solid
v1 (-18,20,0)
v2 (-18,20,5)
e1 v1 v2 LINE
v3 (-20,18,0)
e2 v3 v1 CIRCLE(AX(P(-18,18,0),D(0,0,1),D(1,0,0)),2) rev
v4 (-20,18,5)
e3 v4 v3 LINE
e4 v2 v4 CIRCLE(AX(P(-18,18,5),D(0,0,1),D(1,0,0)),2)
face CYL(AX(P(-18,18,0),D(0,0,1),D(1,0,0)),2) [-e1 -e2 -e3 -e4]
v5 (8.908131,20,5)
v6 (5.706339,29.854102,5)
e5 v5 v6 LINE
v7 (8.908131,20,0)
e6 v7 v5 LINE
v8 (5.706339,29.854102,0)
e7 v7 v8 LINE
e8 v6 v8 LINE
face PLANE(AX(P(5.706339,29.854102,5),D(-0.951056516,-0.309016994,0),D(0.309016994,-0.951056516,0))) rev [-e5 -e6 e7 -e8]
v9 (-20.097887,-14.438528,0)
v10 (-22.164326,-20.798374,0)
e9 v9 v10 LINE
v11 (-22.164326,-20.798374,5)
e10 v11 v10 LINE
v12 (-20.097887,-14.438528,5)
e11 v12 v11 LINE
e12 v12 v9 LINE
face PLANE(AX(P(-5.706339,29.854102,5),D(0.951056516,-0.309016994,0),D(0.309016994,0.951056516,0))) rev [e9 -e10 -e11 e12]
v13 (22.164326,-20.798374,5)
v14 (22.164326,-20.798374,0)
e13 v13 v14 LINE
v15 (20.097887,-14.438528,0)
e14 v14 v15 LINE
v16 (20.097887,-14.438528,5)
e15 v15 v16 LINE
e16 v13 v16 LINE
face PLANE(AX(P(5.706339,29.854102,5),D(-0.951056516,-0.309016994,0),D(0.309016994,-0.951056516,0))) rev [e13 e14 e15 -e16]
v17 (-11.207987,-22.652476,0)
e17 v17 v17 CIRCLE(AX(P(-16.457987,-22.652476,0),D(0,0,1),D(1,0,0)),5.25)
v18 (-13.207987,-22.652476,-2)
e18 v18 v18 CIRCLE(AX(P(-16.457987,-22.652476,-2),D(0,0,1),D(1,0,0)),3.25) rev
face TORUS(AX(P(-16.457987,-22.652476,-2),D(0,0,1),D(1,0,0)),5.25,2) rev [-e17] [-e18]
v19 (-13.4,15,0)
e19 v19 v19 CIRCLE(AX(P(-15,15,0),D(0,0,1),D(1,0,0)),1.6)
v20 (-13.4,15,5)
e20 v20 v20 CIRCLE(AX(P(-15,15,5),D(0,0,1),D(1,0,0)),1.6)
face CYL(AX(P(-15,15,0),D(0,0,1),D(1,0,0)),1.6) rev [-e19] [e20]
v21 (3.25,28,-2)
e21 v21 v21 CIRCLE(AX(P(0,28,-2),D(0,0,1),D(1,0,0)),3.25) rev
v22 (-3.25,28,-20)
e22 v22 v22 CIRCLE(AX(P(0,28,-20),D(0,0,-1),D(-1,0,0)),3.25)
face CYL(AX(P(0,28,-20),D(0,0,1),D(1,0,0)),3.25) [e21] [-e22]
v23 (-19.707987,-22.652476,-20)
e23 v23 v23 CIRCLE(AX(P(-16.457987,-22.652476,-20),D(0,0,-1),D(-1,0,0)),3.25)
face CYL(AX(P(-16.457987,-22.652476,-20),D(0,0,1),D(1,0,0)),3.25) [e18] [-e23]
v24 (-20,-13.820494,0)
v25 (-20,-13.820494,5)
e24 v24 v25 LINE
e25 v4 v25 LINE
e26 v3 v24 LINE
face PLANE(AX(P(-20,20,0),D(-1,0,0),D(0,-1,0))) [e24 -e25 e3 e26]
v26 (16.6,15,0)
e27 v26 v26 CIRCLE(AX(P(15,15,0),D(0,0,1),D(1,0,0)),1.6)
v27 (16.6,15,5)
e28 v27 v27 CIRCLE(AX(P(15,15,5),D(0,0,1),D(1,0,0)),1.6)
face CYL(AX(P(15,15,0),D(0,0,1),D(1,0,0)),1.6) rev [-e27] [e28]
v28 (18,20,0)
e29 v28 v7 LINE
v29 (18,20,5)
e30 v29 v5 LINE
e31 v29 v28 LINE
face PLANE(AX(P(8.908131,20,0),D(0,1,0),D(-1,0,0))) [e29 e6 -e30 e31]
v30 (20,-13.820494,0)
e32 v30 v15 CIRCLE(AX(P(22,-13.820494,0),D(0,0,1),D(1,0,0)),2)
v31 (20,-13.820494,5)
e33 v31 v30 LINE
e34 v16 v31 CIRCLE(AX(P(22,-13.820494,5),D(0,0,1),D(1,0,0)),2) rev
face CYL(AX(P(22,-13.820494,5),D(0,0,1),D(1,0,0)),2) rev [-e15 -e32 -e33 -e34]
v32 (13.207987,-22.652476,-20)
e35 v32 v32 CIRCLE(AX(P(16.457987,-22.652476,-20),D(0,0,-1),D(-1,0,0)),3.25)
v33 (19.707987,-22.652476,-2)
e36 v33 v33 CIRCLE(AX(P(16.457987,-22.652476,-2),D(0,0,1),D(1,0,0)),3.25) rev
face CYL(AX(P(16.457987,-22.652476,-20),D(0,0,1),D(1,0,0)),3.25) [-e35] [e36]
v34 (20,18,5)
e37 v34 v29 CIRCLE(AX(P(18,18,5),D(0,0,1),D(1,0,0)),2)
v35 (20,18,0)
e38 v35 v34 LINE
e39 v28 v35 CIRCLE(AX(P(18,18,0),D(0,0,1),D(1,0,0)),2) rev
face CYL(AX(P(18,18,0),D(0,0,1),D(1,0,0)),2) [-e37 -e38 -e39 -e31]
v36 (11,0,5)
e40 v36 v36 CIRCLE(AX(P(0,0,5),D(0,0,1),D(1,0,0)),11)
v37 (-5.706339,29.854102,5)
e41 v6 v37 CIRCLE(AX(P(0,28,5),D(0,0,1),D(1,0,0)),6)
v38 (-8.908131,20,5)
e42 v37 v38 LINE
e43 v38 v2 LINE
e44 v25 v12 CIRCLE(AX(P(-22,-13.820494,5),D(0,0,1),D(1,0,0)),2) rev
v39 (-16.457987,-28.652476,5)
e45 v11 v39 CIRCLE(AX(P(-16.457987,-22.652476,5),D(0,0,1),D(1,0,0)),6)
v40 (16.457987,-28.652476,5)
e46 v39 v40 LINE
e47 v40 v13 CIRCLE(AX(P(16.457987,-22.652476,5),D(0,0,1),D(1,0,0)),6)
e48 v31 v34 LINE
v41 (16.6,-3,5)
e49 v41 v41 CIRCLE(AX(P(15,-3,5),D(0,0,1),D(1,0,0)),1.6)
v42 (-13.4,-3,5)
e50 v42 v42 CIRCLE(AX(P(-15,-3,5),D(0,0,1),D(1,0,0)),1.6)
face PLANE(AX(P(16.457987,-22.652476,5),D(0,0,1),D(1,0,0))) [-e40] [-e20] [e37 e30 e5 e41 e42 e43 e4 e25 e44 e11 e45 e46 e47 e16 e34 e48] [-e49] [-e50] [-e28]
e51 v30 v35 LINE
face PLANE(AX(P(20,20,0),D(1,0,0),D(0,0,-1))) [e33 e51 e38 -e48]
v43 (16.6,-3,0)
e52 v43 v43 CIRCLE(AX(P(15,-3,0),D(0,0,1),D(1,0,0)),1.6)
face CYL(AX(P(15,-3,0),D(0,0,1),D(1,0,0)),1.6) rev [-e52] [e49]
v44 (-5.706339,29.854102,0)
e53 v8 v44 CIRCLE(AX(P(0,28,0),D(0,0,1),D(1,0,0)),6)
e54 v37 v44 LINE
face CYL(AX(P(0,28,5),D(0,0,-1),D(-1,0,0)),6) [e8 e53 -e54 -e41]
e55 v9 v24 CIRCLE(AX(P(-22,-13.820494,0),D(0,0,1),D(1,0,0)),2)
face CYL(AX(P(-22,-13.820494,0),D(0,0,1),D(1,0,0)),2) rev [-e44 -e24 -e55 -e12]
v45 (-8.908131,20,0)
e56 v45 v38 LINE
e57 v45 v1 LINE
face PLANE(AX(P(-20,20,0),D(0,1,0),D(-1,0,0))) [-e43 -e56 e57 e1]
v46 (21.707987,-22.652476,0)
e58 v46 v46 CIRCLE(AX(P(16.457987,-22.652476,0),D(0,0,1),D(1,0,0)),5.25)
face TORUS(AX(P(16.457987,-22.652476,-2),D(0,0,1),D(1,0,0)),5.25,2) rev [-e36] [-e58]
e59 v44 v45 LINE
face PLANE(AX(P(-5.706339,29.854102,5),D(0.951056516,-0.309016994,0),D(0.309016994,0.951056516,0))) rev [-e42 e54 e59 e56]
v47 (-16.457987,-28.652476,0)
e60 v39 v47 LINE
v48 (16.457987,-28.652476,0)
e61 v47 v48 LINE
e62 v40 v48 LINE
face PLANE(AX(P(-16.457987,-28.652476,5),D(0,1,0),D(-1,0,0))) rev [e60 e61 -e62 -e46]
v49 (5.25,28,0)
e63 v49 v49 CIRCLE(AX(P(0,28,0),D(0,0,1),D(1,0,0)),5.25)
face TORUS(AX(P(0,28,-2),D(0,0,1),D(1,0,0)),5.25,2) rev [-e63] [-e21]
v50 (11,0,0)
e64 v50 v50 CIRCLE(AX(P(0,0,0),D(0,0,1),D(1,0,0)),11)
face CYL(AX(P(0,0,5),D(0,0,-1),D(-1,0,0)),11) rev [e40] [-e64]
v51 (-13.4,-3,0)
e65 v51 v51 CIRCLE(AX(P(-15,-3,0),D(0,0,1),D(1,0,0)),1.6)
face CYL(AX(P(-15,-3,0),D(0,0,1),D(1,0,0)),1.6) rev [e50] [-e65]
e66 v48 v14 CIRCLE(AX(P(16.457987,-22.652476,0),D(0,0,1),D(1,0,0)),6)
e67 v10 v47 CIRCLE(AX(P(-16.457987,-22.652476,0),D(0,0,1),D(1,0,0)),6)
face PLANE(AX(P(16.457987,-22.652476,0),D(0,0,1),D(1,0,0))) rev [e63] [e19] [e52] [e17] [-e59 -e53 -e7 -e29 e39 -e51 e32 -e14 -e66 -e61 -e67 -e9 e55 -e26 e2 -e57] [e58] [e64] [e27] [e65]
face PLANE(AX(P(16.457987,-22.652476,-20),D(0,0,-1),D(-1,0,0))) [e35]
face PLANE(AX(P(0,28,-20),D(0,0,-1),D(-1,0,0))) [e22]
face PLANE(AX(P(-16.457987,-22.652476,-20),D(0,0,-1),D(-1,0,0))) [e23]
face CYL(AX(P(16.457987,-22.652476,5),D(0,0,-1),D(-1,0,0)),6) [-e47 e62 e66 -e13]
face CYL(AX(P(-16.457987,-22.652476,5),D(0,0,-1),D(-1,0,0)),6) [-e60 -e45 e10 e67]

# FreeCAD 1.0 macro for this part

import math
import FreeCAD as App
import Part
import Sketcher
Q = App.Units.Quantity


def edges_at(feature, points):
    """Names of the edges that pass closest to the given points."""
    edges = feature.Shape.Edges
    near = lambda p: min(range(len(edges)), key=lambda i: edges[i].distToShape(Part.Vertex(*p))[0])
    return sorted({f"Edge{near(p) + 1}" for p in points})


def add_polygon(sketch, points):
    """Adds a closed chain of lines whose ends are joined by coincident constraints."""
    first, n = sketch.GeometryCount, len(points)
    for a, b in zip(points, points[1:] + points[:1]):
        sketch.addGeometry(Part.LineSegment(App.Vector(*a, 0), App.Vector(*b, 0)), False)
    for i in range(n):
        sketch.addConstraint(Sketcher.Constraint("Coincident", first + i, 2, first + (i + 1) % n, 1))

doc = App.newDocument("Part")
params = doc.addObject("Spreadsheet::Sheet", "Params")
for row, (alias, value) in enumerate([
    ("sketch1_diameter", "22 mm"),
    ("sketch1_radius", "6 mm"),
    ("pad1_length", "5 mm"),
    ("sketch2_diameter", "6.5 mm"),
    ("pad2_length", "20 mm"),
    ("fillet_radius", "2 mm"),
    ("pad3_length", "5 mm"),
    ("fillet2_radius", "2 mm"),
    ("sketch4_diameter", "3.2 mm"),
    ("pocket1_length", "5 mm"),
], start=1):
    params.set(f"A{row}", alias)
    params.set(f"B{row}", "=" + value)
    params.setAlias(f"B{row}", alias)

body = doc.addObject("PartDesign::Body", "Body")

sketch1 = body.newObject("Sketcher::SketchObject", "Sketch")
sketch1.AttachmentSupport = (doc.getObject("XY_Plane"), [""])
sketch1.MapMode = "FlatFace"
sketch1.addGeometry(Part.LineSegment(App.Vector(-6, 30, 0), App.Vector(-22, -21, 0)), False)
sketch1.addGeometry(Part.ArcOfCircle(Part.Circle(App.Vector(-16, -23, 0), App.Vector(0, 0, 1), 6), math.radians(162), math.radians(270)), False)
sketch1.addGeometry(Part.LineSegment(App.Vector(-16, -29, 0), App.Vector(16, -29, 0)), False)
sketch1.addGeometry(Part.ArcOfCircle(Part.Circle(App.Vector(16, -23, 0), App.Vector(0, 0, 1), 6), math.radians(-90), math.radians(18)), False)
sketch1.addGeometry(Part.LineSegment(App.Vector(22, -21, 0), App.Vector(6, 30, 0)), False)
sketch1.addGeometry(Part.ArcOfCircle(Part.Circle(App.Vector(0, 28, 0), App.Vector(0, 0, 1), 6), math.radians(18), math.radians(162)), False)
sketch1.addGeometry(Part.Circle(App.Vector(0, 0, 0), App.Vector(0, 0, 1), 11), False)
sketch1.addConstraint(Sketcher.Constraint("Tangent", 0, 2, 1, 1))
sketch1.addConstraint(Sketcher.Constraint("Tangent", 1, 2, 2, 1))
sketch1.addConstraint(Sketcher.Constraint("Tangent", 2, 2, 3, 1))
sketch1.addConstraint(Sketcher.Constraint("Tangent", 3, 2, 4, 1))
sketch1.addConstraint(Sketcher.Constraint("Tangent", 4, 2, 5, 1))
sketch1.addConstraint(Sketcher.Constraint("Tangent", 5, 2, 0, 1))
sketch1.addConstraint(Sketcher.Constraint("Horizontal", 2))
sketch1.addConstraint(Sketcher.Constraint("Coincident", 6, 3, -1, 1))
sketch1.addConstraint(Sketcher.Constraint("Equal", 1, 3))
sketch1.addConstraint(Sketcher.Constraint("Equal", 3, 5))
sketch1.addConstraint(Sketcher.Constraint("Symmetric", 0, 2, 3, 2, -2))
sketch1.addConstraint(Sketcher.Constraint("Diameter", 6, Q("22 mm")))
sketch1.addConstraint(Sketcher.Constraint("Radius", 1, Q("6 mm")))
sketch1.addConstraint(Sketcher.Constraint("Angle", 0, Q("-108 deg")))
sketch1.addConstraint(Sketcher.Constraint("DistanceY", -1, 1, 5, 3, Q("28 mm")))
sketch1.addConstraint(Sketcher.Constraint("DistanceX", 2, 1, 2, 2, Q("32.915974 mm")))
sketch1.setExpression("Constraints[11]", "Params.sketch1_diameter")
sketch1.setExpression("Constraints[12]", "Params.sketch1_radius")
pad1 = body.newObject("PartDesign::Pad", "Pad")
pad1.Profile = sketch1
pad1.setExpression("Length", "Params.pad1_length")

sketch2 = body.newObject("Sketcher::SketchObject", "Sketch001")
sketch2.AttachmentSupport = (doc.getObject("XY_Plane"), [""])
sketch2.MapMode = "FlatFace"
sketch2.addGeometry(Part.Circle(App.Vector(0, 28, 0), App.Vector(0, 0, 1), 3.2), False)
sketch2.addGeometry(Part.Circle(App.Vector(16.5, -22.7, 0), App.Vector(0, 0, 1), 3.2), False)
sketch2.addGeometry(Part.Circle(App.Vector(-16.5, -22.7, 0), App.Vector(0, 0, 1), 3.2), False)
sketch2.addConstraint(Sketcher.Constraint("Equal", 0, 1))
sketch2.addConstraint(Sketcher.Constraint("Equal", 1, 2))
sketch2.addConstraint(Sketcher.Constraint("Symmetric", 1, 3, 2, 3, -2))
sketch2.addConstraint(Sketcher.Constraint("PointOnObject", 0, 3, -2))
sketch2.addConstraint(Sketcher.Constraint("Diameter", 0, Q("6.5 mm")))
sketch2.addConstraint(Sketcher.Constraint("DistanceY", -1, 1, 0, 3, Q("28 mm")))
sketch2.addConstraint(Sketcher.Constraint("DistanceX", -1, 1, 1, 3, Q("16.457987 mm")))
sketch2.addConstraint(Sketcher.Constraint("DistanceY", 1, 3, -1, 1, Q("22.652476 mm")))
sketch2.setExpression("Constraints[4]", "Params.sketch2_diameter")
pad2 = body.newObject("PartDesign::Pad", "Pad001")
pad2.Profile = sketch2
pad2.setExpression("Length", "Params.pad2_length")
pad2.Reversed = True
doc.recompute()

fillet = body.newObject("PartDesign::Fillet", "Fillet")
fillet.Base = (pad2, edges_at(pad2, [(-3.25, 28, 0), (13.208, -22.652, 0), (-19.708, -22.652, 0)]))
fillet.setExpression("Radius", "Params.fillet_radius")

sketch3 = body.newObject("Sketcher::SketchObject", "Sketch002")
sketch3.AttachmentSupport = (doc.getObject("XY_Plane"), [""])
sketch3.MapMode = "FlatFace"
sketch3.AttachmentOffset = App.Placement(App.Vector(0, 0, 5), App.Rotation())
add_polygon(sketch3, [(-9, 20), (-20, 20), (-20, -14)])
add_polygon(sketch3, [(20, -14), (20, 20), (9, 20)])
sketch3.addConstraint(Sketcher.Constraint("Horizontal", 0))
sketch3.addConstraint(Sketcher.Constraint("Vertical", 1))
sketch3.addConstraint(Sketcher.Constraint("Vertical", 3))
sketch3.addConstraint(Sketcher.Constraint("Horizontal", 4))
sketch3.addConstraint(Sketcher.Constraint("Symmetric", 0, 2, 3, 2, -2))
sketch3.addConstraint(Sketcher.Constraint("Horizontal", 1, 2, 5, 2))
sketch3.addConstraint(Sketcher.Constraint("Equal", 0, 4))
sketch3.addConstraint(Sketcher.Constraint("Angle", 2, Q("72 deg")))
sketch3.addConstraint(Sketcher.Constraint("DistanceX", 0, 2, -1, 1, Q("20 mm")))
sketch3.addConstraint(Sketcher.Constraint("DistanceY", -1, 1, 0, 2, Q("20 mm")))
sketch3.addConstraint(Sketcher.Constraint("DistanceX", 0, 2, 0, 1, Q("11.091869 mm")))
pad3 = body.newObject("PartDesign::Pad", "Pad002")
pad3.Profile = sketch3
pad3.setExpression("Length", "Params.pad3_length")
pad3.Reversed = True
doc.recompute()

fillet2 = body.newObject("PartDesign::Fillet", "Fillet001")
fillet2.Base = (pad3, edges_at(pad3, [
    (-20, -14.137, 2.5),
    (-20, 20, 2.5),
    (20, 20, 2.5),
    (20, -14.137, 2.5),
]))
fillet2.setExpression("Radius", "Params.fillet2_radius")

sketch4 = body.newObject("Sketcher::SketchObject", "Sketch003")
sketch4.AttachmentSupport = (doc.getObject("XY_Plane"), [""])
sketch4.MapMode = "FlatFace"
sketch4.AttachmentOffset = App.Placement(App.Vector(0, 0, 5), App.Rotation())
sketch4.addGeometry(Part.Circle(App.Vector(-15, 15, 0), App.Vector(0, 0, 1), 1.6), False)
sketch4.addGeometry(Part.Circle(App.Vector(15, 15, 0), App.Vector(0, 0, 1), 1.6), False)
sketch4.addGeometry(Part.Circle(App.Vector(15, -3, 0), App.Vector(0, 0, 1), 1.6), False)
sketch4.addGeometry(Part.Circle(App.Vector(-15, -3, 0), App.Vector(0, 0, 1), 1.6), False)
sketch4.addConstraint(Sketcher.Constraint("Equal", 0, 1))
sketch4.addConstraint(Sketcher.Constraint("Equal", 1, 2))
sketch4.addConstraint(Sketcher.Constraint("Equal", 2, 3))
sketch4.addConstraint(Sketcher.Constraint("Symmetric", 0, 3, 1, 3, -2))
sketch4.addConstraint(Sketcher.Constraint("Symmetric", 2, 3, 3, 3, -2))
sketch4.addConstraint(Sketcher.Constraint("Vertical", 1, 3, 2, 3))
sketch4.addConstraint(Sketcher.Constraint("Diameter", 0, Q("3.2 mm")))
sketch4.addConstraint(Sketcher.Constraint("DistanceX", 0, 3, -1, 1, Q("15 mm")))
sketch4.addConstraint(Sketcher.Constraint("DistanceY", -1, 1, 0, 3, Q("15 mm")))
sketch4.addConstraint(Sketcher.Constraint("DistanceY", 2, 3, -1, 1, Q("3 mm")))
sketch4.setExpression("Constraints[6]", "Params.sketch4_diameter")
pocket1 = body.newObject("PartDesign::Pocket", "Pocket")
pocket1.Profile = sketch4
pocket1.setExpression("Length", "Params.pocket1_length")

doc.recompute()
